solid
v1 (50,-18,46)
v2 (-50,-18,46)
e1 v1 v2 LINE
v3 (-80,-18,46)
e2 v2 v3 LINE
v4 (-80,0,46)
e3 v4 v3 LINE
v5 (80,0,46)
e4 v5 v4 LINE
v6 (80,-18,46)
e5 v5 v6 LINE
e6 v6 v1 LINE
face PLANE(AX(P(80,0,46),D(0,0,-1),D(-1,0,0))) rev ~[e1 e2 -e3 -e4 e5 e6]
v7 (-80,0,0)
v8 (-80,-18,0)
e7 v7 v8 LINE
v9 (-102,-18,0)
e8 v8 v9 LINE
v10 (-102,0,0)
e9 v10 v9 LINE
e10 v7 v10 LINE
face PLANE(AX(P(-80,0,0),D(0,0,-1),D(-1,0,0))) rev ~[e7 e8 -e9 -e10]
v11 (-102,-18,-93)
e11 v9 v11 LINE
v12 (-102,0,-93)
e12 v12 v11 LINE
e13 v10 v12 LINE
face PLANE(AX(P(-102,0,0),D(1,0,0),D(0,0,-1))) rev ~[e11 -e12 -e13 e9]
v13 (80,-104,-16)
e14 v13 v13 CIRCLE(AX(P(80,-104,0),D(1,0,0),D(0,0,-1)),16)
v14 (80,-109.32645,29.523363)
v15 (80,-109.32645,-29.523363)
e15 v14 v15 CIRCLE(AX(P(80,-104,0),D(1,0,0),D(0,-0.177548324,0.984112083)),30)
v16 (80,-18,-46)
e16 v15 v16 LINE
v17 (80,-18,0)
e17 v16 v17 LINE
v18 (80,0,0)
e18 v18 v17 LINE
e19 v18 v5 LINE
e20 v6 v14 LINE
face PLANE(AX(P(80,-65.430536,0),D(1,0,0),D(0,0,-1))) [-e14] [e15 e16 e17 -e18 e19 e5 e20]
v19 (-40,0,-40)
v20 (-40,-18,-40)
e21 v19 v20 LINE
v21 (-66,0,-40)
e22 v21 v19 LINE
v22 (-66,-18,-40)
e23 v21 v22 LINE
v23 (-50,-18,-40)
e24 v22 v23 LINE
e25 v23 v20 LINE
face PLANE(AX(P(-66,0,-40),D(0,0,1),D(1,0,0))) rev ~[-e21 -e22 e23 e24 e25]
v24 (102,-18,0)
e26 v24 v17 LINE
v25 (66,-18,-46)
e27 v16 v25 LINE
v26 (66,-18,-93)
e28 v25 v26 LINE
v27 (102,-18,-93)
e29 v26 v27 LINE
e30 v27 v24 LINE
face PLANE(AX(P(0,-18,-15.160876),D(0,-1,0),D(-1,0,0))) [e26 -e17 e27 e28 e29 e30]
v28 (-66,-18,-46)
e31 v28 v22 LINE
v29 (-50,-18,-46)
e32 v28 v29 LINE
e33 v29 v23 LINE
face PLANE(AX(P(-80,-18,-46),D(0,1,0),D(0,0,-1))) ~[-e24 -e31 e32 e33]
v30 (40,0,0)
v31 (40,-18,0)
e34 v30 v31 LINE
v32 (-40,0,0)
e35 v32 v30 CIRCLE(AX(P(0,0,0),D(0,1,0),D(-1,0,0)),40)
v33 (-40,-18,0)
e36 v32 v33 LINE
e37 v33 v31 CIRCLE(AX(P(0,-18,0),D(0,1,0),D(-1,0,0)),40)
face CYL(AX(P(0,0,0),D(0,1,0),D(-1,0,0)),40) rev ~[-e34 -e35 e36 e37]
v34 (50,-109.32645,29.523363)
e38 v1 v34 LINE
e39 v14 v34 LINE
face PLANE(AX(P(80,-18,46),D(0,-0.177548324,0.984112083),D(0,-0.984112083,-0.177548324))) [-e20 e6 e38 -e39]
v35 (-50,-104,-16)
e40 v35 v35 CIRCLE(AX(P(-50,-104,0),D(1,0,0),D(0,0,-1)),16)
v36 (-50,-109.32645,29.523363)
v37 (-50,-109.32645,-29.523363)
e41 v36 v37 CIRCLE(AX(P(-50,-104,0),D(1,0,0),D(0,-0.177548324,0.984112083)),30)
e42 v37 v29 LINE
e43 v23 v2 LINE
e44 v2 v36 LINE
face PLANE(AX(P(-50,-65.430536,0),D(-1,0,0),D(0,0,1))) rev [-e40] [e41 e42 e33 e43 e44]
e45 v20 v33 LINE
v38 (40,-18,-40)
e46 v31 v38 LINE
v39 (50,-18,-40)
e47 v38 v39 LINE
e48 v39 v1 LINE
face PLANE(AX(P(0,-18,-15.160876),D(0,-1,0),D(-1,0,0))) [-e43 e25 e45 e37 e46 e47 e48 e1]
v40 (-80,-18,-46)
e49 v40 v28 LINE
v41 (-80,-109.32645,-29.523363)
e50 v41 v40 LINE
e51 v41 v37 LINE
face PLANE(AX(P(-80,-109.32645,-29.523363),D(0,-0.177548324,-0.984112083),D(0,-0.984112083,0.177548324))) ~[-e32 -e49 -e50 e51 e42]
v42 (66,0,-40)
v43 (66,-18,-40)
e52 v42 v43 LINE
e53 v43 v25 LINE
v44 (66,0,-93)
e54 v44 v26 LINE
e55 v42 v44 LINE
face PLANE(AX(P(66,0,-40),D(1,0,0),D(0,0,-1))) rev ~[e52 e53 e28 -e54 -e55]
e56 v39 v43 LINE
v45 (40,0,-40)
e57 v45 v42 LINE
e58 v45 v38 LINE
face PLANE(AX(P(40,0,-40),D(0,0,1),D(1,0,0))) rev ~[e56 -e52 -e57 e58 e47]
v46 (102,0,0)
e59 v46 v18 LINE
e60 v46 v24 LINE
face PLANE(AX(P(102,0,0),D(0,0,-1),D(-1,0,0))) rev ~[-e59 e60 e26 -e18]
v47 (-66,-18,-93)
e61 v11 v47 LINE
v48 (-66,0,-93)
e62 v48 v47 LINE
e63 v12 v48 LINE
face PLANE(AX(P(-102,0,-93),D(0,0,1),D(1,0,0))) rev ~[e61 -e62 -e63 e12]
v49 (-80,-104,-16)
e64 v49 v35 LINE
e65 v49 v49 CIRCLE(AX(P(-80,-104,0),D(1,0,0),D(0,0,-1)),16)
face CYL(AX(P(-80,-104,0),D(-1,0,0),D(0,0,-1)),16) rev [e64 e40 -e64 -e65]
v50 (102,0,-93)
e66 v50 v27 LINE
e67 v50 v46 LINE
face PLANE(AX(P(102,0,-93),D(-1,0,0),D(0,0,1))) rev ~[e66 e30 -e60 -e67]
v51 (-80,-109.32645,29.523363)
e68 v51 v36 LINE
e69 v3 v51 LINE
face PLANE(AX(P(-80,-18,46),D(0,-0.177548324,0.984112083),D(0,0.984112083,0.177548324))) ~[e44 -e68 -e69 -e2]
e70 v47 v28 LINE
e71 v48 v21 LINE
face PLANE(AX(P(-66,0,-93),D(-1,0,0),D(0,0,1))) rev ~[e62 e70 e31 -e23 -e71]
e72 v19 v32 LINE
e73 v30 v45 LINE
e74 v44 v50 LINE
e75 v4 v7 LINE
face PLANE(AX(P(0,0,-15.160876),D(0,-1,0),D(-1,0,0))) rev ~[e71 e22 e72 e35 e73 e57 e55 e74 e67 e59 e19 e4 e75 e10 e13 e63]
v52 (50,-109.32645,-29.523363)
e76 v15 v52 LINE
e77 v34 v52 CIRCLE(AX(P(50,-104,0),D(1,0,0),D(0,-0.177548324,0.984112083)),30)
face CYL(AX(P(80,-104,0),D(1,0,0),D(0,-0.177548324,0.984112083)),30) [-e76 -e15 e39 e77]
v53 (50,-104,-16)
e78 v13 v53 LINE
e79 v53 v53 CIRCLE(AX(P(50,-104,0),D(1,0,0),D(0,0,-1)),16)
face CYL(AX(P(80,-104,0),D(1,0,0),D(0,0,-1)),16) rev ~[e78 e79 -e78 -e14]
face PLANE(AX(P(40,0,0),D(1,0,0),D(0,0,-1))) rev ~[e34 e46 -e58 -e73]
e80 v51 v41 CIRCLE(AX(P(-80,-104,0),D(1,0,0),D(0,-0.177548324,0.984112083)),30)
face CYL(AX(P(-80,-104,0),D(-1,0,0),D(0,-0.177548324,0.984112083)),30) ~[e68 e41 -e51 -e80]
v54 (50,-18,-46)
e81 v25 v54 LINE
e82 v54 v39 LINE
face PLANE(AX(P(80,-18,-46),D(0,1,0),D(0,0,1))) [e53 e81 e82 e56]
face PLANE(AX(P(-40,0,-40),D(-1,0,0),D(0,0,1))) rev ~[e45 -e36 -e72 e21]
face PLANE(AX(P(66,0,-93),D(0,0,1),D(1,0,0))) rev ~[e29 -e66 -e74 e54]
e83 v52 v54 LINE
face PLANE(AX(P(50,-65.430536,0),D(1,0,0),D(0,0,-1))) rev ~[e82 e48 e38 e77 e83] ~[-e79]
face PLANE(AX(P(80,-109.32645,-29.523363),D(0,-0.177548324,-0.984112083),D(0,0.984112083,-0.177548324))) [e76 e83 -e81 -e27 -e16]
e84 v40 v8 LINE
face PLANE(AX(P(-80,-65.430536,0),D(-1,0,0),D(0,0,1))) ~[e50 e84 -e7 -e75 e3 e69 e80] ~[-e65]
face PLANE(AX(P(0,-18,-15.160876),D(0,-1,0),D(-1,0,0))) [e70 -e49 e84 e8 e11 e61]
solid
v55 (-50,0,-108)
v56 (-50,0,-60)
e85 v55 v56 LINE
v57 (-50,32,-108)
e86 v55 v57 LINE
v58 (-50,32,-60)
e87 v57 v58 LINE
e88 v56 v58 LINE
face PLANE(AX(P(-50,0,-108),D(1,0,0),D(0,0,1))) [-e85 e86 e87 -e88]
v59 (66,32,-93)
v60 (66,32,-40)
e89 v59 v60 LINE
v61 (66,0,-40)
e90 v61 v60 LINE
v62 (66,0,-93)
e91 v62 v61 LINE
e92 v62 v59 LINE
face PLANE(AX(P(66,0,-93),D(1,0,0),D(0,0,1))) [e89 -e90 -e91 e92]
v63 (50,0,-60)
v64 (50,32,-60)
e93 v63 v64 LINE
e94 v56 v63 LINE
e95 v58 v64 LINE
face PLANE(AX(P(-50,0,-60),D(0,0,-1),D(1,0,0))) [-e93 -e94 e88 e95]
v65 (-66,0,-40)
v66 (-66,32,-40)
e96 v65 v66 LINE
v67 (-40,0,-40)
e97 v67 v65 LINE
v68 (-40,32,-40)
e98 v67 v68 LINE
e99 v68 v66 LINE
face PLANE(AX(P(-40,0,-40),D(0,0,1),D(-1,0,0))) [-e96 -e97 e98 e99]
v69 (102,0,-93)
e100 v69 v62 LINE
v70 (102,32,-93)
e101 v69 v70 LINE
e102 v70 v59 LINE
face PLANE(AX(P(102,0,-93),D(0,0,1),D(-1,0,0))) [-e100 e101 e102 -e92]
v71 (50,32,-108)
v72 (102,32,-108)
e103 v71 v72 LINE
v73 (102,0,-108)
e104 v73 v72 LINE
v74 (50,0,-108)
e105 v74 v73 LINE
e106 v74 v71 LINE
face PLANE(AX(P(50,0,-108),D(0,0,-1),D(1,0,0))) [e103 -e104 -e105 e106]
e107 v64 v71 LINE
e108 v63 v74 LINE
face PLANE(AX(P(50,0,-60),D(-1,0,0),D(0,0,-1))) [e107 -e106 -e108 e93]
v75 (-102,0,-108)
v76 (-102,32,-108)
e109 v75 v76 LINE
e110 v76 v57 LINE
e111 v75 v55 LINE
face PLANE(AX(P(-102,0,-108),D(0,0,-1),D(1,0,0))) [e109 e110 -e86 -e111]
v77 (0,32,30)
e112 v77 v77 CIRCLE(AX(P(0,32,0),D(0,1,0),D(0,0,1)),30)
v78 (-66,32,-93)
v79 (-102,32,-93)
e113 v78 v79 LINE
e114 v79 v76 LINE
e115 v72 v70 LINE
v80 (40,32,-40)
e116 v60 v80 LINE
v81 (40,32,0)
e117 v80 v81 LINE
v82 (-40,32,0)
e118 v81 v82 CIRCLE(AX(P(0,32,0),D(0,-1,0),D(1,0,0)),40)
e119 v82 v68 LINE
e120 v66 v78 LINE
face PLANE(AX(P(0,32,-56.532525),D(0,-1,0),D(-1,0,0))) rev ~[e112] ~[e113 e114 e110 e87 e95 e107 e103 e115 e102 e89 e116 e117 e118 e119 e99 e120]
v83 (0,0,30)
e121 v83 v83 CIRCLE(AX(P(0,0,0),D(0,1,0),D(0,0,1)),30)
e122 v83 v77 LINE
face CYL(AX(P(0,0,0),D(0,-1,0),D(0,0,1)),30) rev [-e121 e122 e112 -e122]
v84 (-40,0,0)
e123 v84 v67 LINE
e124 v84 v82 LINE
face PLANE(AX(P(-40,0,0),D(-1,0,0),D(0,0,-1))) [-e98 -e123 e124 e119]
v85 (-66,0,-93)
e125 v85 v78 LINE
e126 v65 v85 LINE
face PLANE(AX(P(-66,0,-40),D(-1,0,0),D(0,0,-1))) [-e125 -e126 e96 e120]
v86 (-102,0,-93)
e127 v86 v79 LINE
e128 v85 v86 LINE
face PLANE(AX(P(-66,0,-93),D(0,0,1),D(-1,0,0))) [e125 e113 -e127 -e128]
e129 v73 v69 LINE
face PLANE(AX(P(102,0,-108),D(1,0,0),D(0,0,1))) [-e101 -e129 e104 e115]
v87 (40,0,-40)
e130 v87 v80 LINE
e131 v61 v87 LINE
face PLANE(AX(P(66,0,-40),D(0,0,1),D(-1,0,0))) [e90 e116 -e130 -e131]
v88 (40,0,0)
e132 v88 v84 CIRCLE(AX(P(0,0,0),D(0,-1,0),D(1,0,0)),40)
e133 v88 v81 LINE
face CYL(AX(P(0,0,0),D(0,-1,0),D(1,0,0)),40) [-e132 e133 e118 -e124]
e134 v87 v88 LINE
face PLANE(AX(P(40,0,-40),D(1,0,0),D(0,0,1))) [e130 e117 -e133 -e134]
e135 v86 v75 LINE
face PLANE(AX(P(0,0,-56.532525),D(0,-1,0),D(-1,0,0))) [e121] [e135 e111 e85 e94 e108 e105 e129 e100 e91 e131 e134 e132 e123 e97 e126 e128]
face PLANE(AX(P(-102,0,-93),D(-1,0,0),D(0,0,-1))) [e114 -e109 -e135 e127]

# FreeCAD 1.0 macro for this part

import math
import FreeCAD as App
import Part
import Sketcher

doc = App.newDocument("Part")
body = doc.addObject("PartDesign::Body", "Body")

sketch1 = body.newObject("Sketcher::SketchObject", "Sketch")
sketch1.AttachmentSupport = (doc.getObject("XZ_Plane"), [""])
sketch1.MapMode = "FlatFace"
sketch1.addGeometry(Part.LineSegment(App.Vector(-40, -40, 0), App.Vector(-40, 0, 0)), False)
sketch1.addGeometry(Part.ArcOfCircle(Part.Circle(App.Vector(0, 0, 0), App.Vector(0, 0, 1), 40), math.radians(0), math.radians(180)), False)
sketch1.addGeometry(Part.LineSegment(App.Vector(40, 0, 0), App.Vector(40, -40, 0)), False)
sketch1.addGeometry(Part.LineSegment(App.Vector(40, -40, 0), App.Vector(66, -40, 0)), False)
sketch1.addGeometry(Part.LineSegment(App.Vector(66, -40, 0), App.Vector(66, -93, 0)), False)
sketch1.addGeometry(Part.LineSegment(App.Vector(66, -93, 0), App.Vector(102, -93, 0)), False)
sketch1.addGeometry(Part.LineSegment(App.Vector(102, -93, 0), App.Vector(102, -108, 0)), False)
sketch1.addGeometry(Part.LineSegment(App.Vector(102, -108, 0), App.Vector(50, -108, 0)), False)
sketch1.addGeometry(Part.LineSegment(App.Vector(50, -108, 0), App.Vector(50, -60, 0)), False)
sketch1.addGeometry(Part.LineSegment(App.Vector(50, -60, 0), App.Vector(-50, -60, 0)), False)
sketch1.addGeometry(Part.LineSegment(App.Vector(-50, -60, 0), App.Vector(-50, -108, 0)), False)
sketch1.addGeometry(Part.LineSegment(App.Vector(-50, -108, 0), App.Vector(-102, -108, 0)), False)
sketch1.addGeometry(Part.LineSegment(App.Vector(-102, -108, 0), App.Vector(-102, -93, 0)), False)
sketch1.addGeometry(Part.LineSegment(App.Vector(-102, -93, 0), App.Vector(-66, -93, 0)), False)
sketch1.addGeometry(Part.LineSegment(App.Vector(-66, -93, 0), App.Vector(-66, -40, 0)), False)
sketch1.addGeometry(Part.LineSegment(App.Vector(-66, -40, 0), App.Vector(-40, -40, 0)), False)
sketch1.addGeometry(Part.Circle(App.Vector(0, 0, 0), App.Vector(0, 0, 1), 30), False)
sketch1.addConstraint(Sketcher.Constraint("Tangent", 0, 2, 1, 2))
sketch1.addConstraint(Sketcher.Constraint("Tangent", 1, 1, 2, 1))
sketch1.addConstraint(Sketcher.Constraint("Coincident", 2, 2, 3, 1))
sketch1.addConstraint(Sketcher.Constraint("Coincident", 3, 2, 4, 1))
sketch1.addConstraint(Sketcher.Constraint("Coincident", 4, 2, 5, 1))
sketch1.addConstraint(Sketcher.Constraint("Coincident", 5, 2, 6, 1))
sketch1.addConstraint(Sketcher.Constraint("Coincident", 6, 2, 7, 1))
sketch1.addConstraint(Sketcher.Constraint("Coincident", 7, 2, 8, 1))
sketch1.addConstraint(Sketcher.Constraint("Coincident", 8, 2, 9, 1))
sketch1.addConstraint(Sketcher.Constraint("Coincident", 9, 2, 10, 1))
sketch1.addConstraint(Sketcher.Constraint("Coincident", 10, 2, 11, 1))
sketch1.addConstraint(Sketcher.Constraint("Coincident", 11, 2, 12, 1))
sketch1.addConstraint(Sketcher.Constraint("Coincident", 12, 2, 13, 1))
sketch1.addConstraint(Sketcher.Constraint("Coincident", 13, 2, 14, 1))
sketch1.addConstraint(Sketcher.Constraint("Coincident", 14, 2, 15, 1))
sketch1.addConstraint(Sketcher.Constraint("Coincident", 15, 2, 0, 1))
sketch1.addConstraint(Sketcher.Constraint("Vertical", 0))
sketch1.addConstraint(Sketcher.Constraint("Vertical", 2))
sketch1.addConstraint(Sketcher.Constraint("Horizontal", 3))
sketch1.addConstraint(Sketcher.Constraint("Vertical", 4))
sketch1.addConstraint(Sketcher.Constraint("Horizontal", 5))
sketch1.addConstraint(Sketcher.Constraint("Vertical", 6))
sketch1.addConstraint(Sketcher.Constraint("Horizontal", 7))
sketch1.addConstraint(Sketcher.Constraint("Vertical", 8))
sketch1.addConstraint(Sketcher.Constraint("Horizontal", 9))
sketch1.addConstraint(Sketcher.Constraint("Vertical", 10))
sketch1.addConstraint(Sketcher.Constraint("Horizontal", 11))
sketch1.addConstraint(Sketcher.Constraint("Vertical", 12))
sketch1.addConstraint(Sketcher.Constraint("Horizontal", 13))
sketch1.addConstraint(Sketcher.Constraint("Vertical", 14))
sketch1.addConstraint(Sketcher.Constraint("Horizontal", 15))
sketch1.addConstraint(Sketcher.Constraint("Coincident", 1, 3, -1, 1))
sketch1.addConstraint(Sketcher.Constraint("Coincident", 16, 3, -1, 1))
sketch1.addConstraint(Sketcher.Constraint("Symmetric", 7, 2, 10, 2, -2))
sketch1.addConstraint(Sketcher.Constraint("Symmetric", 5, 2, 12, 2, -2))
sketch1.addConstraint(Sketcher.Constraint("Symmetric", 3, 2, 14, 2, -2))
sketch1.addConstraint(Sketcher.Constraint("Diameter", 16, 60.0))
sketch1.addConstraint(Sketcher.Constraint("Radius", 1, 40.0))
sketch1.addConstraint(Sketcher.Constraint("DistanceX", 3, 1, 3, 2, 26.0))
sketch1.addConstraint(Sketcher.Constraint("DistanceX", 5, 1, 5, 2, 36.0))
sketch1.addConstraint(Sketcher.Constraint("DistanceX", 7, 2, 7, 1, 52.0))
sketch1.addConstraint(Sketcher.Constraint("DistanceY", 0, 1, 0, 2, 40.0))
sketch1.addConstraint(Sketcher.Constraint("DistanceY", 4, 2, 4, 1, 53.0))
sketch1.addConstraint(Sketcher.Constraint("DistanceY", 6, 2, 6, 1, 15.0))
sketch1.addConstraint(Sketcher.Constraint("DistanceY", 8, 1, 8, 2, 48.0))
pad1 = body.newObject("PartDesign::Pad", "Pad")
pad1.Profile = sketch1
pad1.Length = 32
pad1.Reversed = True
body2 = doc.addObject("PartDesign::Body", "Body001")

sketch2 = body2.newObject("Sketcher::SketchObject", "Sketch001")
sketch2.AttachmentSupport = (doc.getObject("XZ_Plane001"), [""])
sketch2.MapMode = "FlatFace"
sketch2.addGeometry(Part.ArcOfCircle(Part.Circle(App.Vector(0, 0, 0), App.Vector(0, 0, 1), 40), math.radians(0), math.radians(180)), False)
sketch2.addGeometry(Part.LineSegment(App.Vector(-40, 0, 0), App.Vector(-40, -40, 0)), False)
sketch2.addGeometry(Part.LineSegment(App.Vector(-40, -40, 0), App.Vector(-66, -40, 0)), False)
sketch2.addGeometry(Part.LineSegment(App.Vector(-66, -40, 0), App.Vector(-66, -93, 0)), False)
sketch2.addGeometry(Part.LineSegment(App.Vector(-66, -93, 0), App.Vector(-102, -93, 0)), False)
sketch2.addGeometry(Part.LineSegment(App.Vector(-102, -93, 0), App.Vector(-102, 0, 0)), False)
sketch2.addGeometry(Part.LineSegment(App.Vector(-102, 0, 0), App.Vector(-80, 0, 0)), False)
sketch2.addGeometry(Part.LineSegment(App.Vector(-80, 0, 0), App.Vector(-80, 46, 0)), False)
sketch2.addGeometry(Part.LineSegment(App.Vector(-80, 46, 0), App.Vector(80, 46, 0)), False)
sketch2.addGeometry(Part.LineSegment(App.Vector(80, 46, 0), App.Vector(80, 0, 0)), False)
sketch2.addGeometry(Part.LineSegment(App.Vector(80, 0, 0), App.Vector(102, 0, 0)), False)
sketch2.addGeometry(Part.LineSegment(App.Vector(102, 0, 0), App.Vector(102, -93, 0)), False)
sketch2.addGeometry(Part.LineSegment(App.Vector(102, -93, 0), App.Vector(66, -93, 0)), False)
sketch2.addGeometry(Part.LineSegment(App.Vector(66, -93, 0), App.Vector(66, -40, 0)), False)
sketch2.addGeometry(Part.LineSegment(App.Vector(66, -40, 0), App.Vector(40, -40, 0)), False)
sketch2.addGeometry(Part.LineSegment(App.Vector(40, -40, 0), App.Vector(40, 0, 0)), False)
sketch2.addConstraint(Sketcher.Constraint("Tangent", 0, 2, 1, 1))
sketch2.addConstraint(Sketcher.Constraint("Coincident", 1, 2, 2, 1))
sketch2.addConstraint(Sketcher.Constraint("Coincident", 2, 2, 3, 1))
sketch2.addConstraint(Sketcher.Constraint("Coincident", 3, 2, 4, 1))
sketch2.addConstraint(Sketcher.Constraint("Coincident", 4, 2, 5, 1))
sketch2.addConstraint(Sketcher.Constraint("Coincident", 5, 2, 6, 1))
sketch2.addConstraint(Sketcher.Constraint("Coincident", 6, 2, 7, 1))
sketch2.addConstraint(Sketcher.Constraint("Coincident", 7, 2, 8, 1))
sketch2.addConstraint(Sketcher.Constraint("Coincident", 8, 2, 9, 1))
sketch2.addConstraint(Sketcher.Constraint("Coincident", 9, 2, 10, 1))
sketch2.addConstraint(Sketcher.Constraint("Coincident", 10, 2, 11, 1))
sketch2.addConstraint(Sketcher.Constraint("Coincident", 11, 2, 12, 1))
sketch2.addConstraint(Sketcher.Constraint("Coincident", 12, 2, 13, 1))
sketch2.addConstraint(Sketcher.Constraint("Coincident", 13, 2, 14, 1))
sketch2.addConstraint(Sketcher.Constraint("Coincident", 14, 2, 15, 1))
sketch2.addConstraint(Sketcher.Constraint("Tangent", 15, 2, 0, 1))
sketch2.addConstraint(Sketcher.Constraint("Vertical", 1))
sketch2.addConstraint(Sketcher.Constraint("Horizontal", 2))
sketch2.addConstraint(Sketcher.Constraint("Vertical", 3))
sketch2.addConstraint(Sketcher.Constraint("Horizontal", 4))
sketch2.addConstraint(Sketcher.Constraint("Vertical", 5))
sketch2.addConstraint(Sketcher.Constraint("Horizontal", 6))
sketch2.addConstraint(Sketcher.Constraint("Vertical", 7))
sketch2.addConstraint(Sketcher.Constraint("Horizontal", 8))
sketch2.addConstraint(Sketcher.Constraint("Vertical", 9))
sketch2.addConstraint(Sketcher.Constraint("Horizontal", 10))
sketch2.addConstraint(Sketcher.Constraint("Vertical", 11))
sketch2.addConstraint(Sketcher.Constraint("Horizontal", 12))
sketch2.addConstraint(Sketcher.Constraint("Vertical", 13))
sketch2.addConstraint(Sketcher.Constraint("Horizontal", 14))
sketch2.addConstraint(Sketcher.Constraint("Vertical", 15))
sketch2.addConstraint(Sketcher.Constraint("Coincident", 0, 3, -1, 1))
sketch2.addConstraint(Sketcher.Constraint("Symmetric", 6, 2, 9, 2, -1, 1))
sketch2.addConstraint(Sketcher.Constraint("Symmetric", 5, 2, 10, 2, -2))
sketch2.addConstraint(Sketcher.Constraint("Symmetric", 3, 2, 12, 2, -2))
sketch2.addConstraint(Sketcher.Constraint("Horizontal", 2, 2, 13, 2))
sketch2.addConstraint(Sketcher.Constraint("Radius", 0, 40.0))
sketch2.addConstraint(Sketcher.Constraint("DistanceX", 2, 2, 2, 1, 26.0))
sketch2.addConstraint(Sketcher.Constraint("DistanceX", 4, 2, 4, 1, 36.0))
sketch2.addConstraint(Sketcher.Constraint("DistanceX", 6, 1, 6, 2, 22.0))
sketch2.addConstraint(Sketcher.Constraint("DistanceY", 1, 2, 1, 1, 40.0))
sketch2.addConstraint(Sketcher.Constraint("DistanceY", 3, 2, 3, 1, 53.0))
sketch2.addConstraint(Sketcher.Constraint("DistanceY", 7, 1, 7, 2, 46.0))
pad2 = body2.newObject("PartDesign::Pad", "Pad001")
pad2.Profile = sketch2
pad2.Length = 18

sketch3 = body2.newObject("Sketcher::SketchObject", "Sketch002")
sketch3.AttachmentSupport = (doc.getObject("YZ_Plane001"), [""])
sketch3.MapMode = "FlatFace"
sketch3.AttachmentOffset = App.Placement(App.Vector(0, 0, 80), App.Rotation())
sketch3.addGeometry(Part.LineSegment(App.Vector(-18, 46, 0), App.Vector(-109.32645, 29.523363, 0)), False)
sketch3.addGeometry(Part.ArcOfCircle(Part.Circle(App.Vector(-104, 0, 0), App.Vector(0, 0, 1), 30), math.radians(100.226989), math.radians(259.773011)), False)
sketch3.addGeometry(Part.LineSegment(App.Vector(-109.32645, -29.523363, 0), App.Vector(-18, -46, 0)), False)
sketch3.addGeometry(Part.LineSegment(App.Vector(-18, -46, 0), App.Vector(-18, 46, 0)), False)
sketch3.addGeometry(Part.Circle(App.Vector(-104, 0, 0), App.Vector(0, 0, 1), 16), False)
sketch3.addConstraint(Sketcher.Constraint("Tangent", 0, 2, 1, 1))
sketch3.addConstraint(Sketcher.Constraint("Tangent", 1, 2, 2, 1))
sketch3.addConstraint(Sketcher.Constraint("Coincident", 2, 2, 3, 1))
sketch3.addConstraint(Sketcher.Constraint("Coincident", 3, 2, 0, 1))
sketch3.addConstraint(Sketcher.Constraint("Vertical", 3))
sketch3.addConstraint(Sketcher.Constraint("Coincident", 4, 3, 1, 3))
sketch3.addConstraint(Sketcher.Constraint("Symmetric", 0, 2, 1, 2, -1))
sketch3.addConstraint(Sketcher.Constraint("Diameter", 4, 32.0))
sketch3.addConstraint(Sketcher.Constraint("Radius", 1, 30.0))
sketch3.addConstraint(Sketcher.Constraint("DistanceY", 3, 1, 3, 2, 92.0))
sketch3.addConstraint(Sketcher.Constraint("DistanceX", 1, 3, -1, 1, 104.0))
sketch3.addConstraint(Sketcher.Constraint("DistanceX", 2, 2, -1, 1, 18.0))
pad3 = body2.newObject("PartDesign::Pad", "Pad002")
pad3.Profile = sketch3
pad3.Length = 30
pad3.Reversed = True
doc.recompute()

mirrored = body2.newObject("PartDesign::Mirrored", "Mirrored")
mirrored.Originals = [pad3]
mirrored.MirrorPlane = (doc.getObject("YZ_Plane001"), [""])
body2.Tip = mirrored

doc.recompute()
